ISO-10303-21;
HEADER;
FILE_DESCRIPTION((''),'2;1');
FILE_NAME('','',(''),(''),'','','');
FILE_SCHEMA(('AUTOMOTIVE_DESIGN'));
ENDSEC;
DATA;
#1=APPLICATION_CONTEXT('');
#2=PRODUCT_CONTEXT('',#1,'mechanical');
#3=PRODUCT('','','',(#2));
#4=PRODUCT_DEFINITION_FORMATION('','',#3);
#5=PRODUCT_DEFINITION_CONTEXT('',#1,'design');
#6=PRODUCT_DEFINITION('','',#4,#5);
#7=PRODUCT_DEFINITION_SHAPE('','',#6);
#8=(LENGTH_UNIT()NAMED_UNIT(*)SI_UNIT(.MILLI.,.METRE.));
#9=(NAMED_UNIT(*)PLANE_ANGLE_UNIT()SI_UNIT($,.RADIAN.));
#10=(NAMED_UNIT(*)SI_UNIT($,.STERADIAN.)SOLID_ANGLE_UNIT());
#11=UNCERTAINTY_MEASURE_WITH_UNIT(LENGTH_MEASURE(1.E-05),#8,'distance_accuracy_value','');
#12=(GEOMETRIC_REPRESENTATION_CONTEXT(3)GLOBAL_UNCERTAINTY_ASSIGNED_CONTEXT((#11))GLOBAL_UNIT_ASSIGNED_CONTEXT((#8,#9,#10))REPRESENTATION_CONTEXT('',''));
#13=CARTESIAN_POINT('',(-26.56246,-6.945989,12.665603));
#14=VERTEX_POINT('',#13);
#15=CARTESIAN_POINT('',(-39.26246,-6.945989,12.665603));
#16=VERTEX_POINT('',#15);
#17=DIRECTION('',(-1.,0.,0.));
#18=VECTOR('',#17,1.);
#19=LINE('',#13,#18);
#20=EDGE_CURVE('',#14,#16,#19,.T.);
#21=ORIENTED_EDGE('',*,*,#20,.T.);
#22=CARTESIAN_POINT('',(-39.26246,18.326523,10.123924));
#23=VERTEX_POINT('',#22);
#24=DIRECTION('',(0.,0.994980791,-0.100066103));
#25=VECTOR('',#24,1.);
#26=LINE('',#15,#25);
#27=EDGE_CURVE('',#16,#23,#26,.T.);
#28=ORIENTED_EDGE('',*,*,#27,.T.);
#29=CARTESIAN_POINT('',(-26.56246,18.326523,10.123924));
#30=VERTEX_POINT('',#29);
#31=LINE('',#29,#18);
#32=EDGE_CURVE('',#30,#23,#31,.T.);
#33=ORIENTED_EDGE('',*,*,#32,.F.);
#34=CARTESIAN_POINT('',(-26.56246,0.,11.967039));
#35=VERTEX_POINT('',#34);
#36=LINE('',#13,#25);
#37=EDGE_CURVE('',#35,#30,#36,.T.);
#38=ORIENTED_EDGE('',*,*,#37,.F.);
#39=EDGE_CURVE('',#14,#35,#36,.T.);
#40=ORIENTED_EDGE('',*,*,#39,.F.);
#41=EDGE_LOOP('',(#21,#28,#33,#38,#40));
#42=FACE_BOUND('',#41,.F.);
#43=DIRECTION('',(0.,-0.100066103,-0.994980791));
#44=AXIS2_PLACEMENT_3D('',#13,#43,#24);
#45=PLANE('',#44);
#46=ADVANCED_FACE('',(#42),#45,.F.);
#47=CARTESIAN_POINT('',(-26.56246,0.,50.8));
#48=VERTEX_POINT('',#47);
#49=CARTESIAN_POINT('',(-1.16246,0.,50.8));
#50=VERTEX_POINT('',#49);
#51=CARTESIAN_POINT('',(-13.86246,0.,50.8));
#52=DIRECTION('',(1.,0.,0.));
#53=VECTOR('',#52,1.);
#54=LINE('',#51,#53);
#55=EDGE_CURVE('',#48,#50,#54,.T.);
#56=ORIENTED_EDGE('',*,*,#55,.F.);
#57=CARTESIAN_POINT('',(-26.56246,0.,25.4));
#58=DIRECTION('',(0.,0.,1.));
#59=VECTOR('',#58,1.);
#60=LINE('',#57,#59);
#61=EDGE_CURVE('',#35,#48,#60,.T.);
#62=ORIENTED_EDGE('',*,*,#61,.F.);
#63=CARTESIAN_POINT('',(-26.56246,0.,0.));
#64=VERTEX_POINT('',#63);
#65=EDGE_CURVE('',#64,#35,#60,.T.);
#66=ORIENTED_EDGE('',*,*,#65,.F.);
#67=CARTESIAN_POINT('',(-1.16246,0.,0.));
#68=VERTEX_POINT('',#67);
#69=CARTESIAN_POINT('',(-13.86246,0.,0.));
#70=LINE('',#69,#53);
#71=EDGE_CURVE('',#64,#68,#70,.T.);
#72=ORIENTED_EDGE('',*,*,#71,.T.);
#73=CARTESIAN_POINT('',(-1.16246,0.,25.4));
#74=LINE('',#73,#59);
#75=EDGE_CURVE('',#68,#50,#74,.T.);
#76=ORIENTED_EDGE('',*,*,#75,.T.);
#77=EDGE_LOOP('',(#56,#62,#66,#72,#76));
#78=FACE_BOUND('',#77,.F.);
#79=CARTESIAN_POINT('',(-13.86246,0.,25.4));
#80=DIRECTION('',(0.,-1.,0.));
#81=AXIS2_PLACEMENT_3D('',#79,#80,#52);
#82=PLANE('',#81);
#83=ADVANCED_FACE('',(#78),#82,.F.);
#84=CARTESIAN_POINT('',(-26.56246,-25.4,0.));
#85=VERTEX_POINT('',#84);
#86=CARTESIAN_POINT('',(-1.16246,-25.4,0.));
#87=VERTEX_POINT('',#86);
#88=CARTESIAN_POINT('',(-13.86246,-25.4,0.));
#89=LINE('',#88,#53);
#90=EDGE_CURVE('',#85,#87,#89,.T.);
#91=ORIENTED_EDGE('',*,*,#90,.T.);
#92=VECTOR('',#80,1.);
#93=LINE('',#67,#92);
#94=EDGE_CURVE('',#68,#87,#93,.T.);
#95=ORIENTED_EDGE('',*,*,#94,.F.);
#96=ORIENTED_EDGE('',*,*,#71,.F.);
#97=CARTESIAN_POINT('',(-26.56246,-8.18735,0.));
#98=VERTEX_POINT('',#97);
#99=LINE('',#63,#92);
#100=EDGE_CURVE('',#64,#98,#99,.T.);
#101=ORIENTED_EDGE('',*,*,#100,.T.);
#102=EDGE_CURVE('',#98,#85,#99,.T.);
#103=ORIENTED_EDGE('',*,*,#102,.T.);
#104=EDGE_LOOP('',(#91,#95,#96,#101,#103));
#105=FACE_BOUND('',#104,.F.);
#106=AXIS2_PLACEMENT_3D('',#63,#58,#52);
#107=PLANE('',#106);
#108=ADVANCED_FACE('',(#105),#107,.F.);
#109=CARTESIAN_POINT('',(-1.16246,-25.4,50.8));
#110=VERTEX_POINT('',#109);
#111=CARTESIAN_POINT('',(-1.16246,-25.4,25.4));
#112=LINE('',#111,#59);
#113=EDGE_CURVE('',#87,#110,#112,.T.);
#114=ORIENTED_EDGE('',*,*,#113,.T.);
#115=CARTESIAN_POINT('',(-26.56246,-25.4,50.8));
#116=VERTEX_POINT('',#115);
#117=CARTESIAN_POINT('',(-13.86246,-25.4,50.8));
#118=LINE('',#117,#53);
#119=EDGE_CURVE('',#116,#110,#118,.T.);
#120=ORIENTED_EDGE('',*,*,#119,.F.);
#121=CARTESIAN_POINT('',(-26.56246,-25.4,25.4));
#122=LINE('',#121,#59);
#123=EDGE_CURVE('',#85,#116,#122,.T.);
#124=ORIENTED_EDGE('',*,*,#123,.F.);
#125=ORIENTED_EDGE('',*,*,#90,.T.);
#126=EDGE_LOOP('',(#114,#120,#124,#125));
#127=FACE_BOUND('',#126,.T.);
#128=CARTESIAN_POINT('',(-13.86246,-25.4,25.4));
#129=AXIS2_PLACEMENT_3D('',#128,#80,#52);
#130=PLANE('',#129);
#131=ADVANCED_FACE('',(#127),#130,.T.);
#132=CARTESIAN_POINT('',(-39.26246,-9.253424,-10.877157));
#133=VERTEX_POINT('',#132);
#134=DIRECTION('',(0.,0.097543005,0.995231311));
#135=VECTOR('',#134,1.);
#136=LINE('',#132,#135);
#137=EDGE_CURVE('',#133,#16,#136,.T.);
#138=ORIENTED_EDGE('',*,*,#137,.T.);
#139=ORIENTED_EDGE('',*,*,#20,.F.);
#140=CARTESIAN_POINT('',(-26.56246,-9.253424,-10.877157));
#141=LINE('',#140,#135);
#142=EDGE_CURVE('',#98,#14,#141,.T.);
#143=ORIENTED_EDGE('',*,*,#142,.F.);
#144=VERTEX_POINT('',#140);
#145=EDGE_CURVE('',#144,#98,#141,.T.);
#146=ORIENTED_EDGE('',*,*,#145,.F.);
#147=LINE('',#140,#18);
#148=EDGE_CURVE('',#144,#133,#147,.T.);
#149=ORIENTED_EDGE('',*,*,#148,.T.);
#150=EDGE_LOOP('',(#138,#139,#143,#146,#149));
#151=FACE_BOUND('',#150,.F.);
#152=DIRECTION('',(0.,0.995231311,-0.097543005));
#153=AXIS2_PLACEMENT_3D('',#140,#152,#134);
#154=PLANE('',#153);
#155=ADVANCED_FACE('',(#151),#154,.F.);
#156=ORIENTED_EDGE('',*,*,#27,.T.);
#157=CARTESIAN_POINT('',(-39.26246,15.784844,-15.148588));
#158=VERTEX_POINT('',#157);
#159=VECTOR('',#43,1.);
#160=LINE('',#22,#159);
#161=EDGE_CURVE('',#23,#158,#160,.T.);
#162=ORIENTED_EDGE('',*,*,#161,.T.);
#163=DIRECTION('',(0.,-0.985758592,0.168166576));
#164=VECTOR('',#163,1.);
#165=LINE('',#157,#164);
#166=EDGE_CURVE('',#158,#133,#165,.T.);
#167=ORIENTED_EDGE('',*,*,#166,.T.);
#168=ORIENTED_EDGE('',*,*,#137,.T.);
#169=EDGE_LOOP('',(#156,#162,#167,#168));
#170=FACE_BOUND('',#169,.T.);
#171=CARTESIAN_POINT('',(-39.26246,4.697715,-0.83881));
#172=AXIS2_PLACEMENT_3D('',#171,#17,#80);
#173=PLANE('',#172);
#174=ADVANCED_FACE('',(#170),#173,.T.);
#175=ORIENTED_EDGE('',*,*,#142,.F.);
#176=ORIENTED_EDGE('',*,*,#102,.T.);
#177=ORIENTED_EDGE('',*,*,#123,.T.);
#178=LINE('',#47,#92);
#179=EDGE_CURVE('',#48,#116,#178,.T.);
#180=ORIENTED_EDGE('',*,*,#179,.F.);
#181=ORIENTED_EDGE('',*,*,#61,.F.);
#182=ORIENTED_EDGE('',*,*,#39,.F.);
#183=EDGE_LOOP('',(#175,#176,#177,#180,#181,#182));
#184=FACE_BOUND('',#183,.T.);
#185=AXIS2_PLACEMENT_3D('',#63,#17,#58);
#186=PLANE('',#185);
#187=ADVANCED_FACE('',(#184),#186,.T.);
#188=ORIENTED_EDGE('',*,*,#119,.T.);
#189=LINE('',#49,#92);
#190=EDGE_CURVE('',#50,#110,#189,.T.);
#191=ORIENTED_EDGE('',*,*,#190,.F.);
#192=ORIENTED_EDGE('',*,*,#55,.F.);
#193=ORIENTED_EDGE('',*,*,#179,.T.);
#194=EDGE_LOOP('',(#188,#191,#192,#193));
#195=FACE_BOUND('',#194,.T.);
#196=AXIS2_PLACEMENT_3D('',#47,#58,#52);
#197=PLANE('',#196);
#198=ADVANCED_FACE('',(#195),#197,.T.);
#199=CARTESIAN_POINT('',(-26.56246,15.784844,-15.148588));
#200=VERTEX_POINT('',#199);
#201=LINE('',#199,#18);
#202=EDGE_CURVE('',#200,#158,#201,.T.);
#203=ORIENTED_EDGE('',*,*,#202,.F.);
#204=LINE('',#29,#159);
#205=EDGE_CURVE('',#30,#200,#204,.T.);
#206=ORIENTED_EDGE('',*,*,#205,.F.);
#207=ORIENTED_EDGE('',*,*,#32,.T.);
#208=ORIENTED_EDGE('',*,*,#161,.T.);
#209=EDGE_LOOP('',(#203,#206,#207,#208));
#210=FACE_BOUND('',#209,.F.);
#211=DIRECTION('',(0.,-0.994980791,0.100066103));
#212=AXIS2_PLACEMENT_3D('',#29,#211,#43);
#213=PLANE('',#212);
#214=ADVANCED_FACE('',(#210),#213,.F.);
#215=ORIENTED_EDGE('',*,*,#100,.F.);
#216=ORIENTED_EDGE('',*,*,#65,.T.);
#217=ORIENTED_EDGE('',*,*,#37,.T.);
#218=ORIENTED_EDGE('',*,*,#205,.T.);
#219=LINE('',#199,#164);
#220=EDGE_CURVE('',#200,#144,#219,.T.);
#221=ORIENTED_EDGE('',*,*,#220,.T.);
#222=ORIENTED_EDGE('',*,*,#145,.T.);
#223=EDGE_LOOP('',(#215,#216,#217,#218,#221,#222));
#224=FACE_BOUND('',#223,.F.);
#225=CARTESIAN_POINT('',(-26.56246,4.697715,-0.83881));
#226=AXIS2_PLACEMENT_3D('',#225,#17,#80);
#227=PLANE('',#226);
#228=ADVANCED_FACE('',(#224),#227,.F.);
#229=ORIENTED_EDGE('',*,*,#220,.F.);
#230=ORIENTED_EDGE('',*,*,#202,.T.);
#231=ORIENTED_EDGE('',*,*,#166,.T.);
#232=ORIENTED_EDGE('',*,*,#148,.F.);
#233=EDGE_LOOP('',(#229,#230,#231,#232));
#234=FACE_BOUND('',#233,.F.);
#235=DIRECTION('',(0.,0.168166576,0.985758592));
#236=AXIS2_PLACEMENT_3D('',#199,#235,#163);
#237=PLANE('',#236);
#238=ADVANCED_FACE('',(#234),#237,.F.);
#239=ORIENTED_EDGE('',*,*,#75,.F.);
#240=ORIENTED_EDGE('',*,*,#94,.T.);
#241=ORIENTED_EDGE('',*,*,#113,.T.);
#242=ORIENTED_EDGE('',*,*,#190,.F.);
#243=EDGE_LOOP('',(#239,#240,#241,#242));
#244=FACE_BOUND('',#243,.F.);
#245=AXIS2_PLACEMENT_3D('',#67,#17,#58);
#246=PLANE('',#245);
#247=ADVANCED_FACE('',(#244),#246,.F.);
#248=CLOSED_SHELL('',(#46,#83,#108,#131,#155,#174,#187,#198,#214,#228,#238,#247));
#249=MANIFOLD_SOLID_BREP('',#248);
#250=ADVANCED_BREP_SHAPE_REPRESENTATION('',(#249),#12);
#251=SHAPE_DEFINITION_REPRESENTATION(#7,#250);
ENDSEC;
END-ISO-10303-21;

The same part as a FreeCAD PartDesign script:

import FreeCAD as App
import Part
import Sketcher
from FreeCAD import Vector
Q = App.Units.Quantity


def add_polygon(sketch, points):
    """Adds a closed chain of lines whose ends are joined by coincident constraints."""
    first, n = sketch.GeometryCount, len(points)
    for a, b in zip(points, points[1:] + points[:1]):
        sketch.addGeometry(Part.LineSegment(App.Vector(*a, 0), App.Vector(*b, 0)), False)
    for i in range(n):
        sketch.addConstraint(Sketcher.Constraint("Coincident", first + i, 2, first + (i + 1) % n, 1))

doc = App.newDocument("Part")
body = doc.addObject("PartDesign::Body", "Body")

# Sketch on XZ plane
sketch1 = doc.addObject("Sketcher::SketchObject", "Sketch")
body.addObject(sketch1)
sketch1.AttachmentSupport = (doc.XZ_Plane, [""])
sketch1.MapMode = "FlatFace"
add_polygon(sketch1, [(-26.56246, 50.8), (-26.56246, 0), (-1.16246, 0), (-1.16246, 50.8)])  # lines 0-3
sketch1.addConstraint([
    Sketcher.Constraint("Vertical", 0),
    Sketcher.Constraint("Horizontal", 1),
    Sketcher.Constraint("Vertical", 2),
    Sketcher.Constraint("Horizontal", 3),
    Sketcher.Constraint("PointOnObject", 0, 2, -1),
    Sketcher.Constraint("DistanceX", 1, 1, 1, 2, Q("1 in")),
    Sketcher.Constraint("DistanceY", 0, 2, 0, 1, Q("2 in")),
    Sketcher.Constraint("DistanceX", 0, 2, -1, 1, Q("26.56246 mm")),
])
pad1 = doc.addObject("PartDesign::Pad", "Pad")
body.addObject(pad1)
pad1.Profile = sketch1
pad1.Length = Q("1 in")

# Sketch on YZ plane
sketch2 = doc.addObject("Sketcher::SketchObject", "Sketch001")
body.addObject(sketch2)
sketch2.AttachmentSupport = (doc.YZ_Plane, [""])
sketch2.MapMode = "FlatFace"
sketch2.AttachmentOffset = App.Placement(Vector(0, 0, -26.56246), App.Rotation())
add_polygon(sketch2, [(-9.253424, -10.877157), (-6.945989, 12.665603), (18.326523, 10.123924), (15.784844, -15.148588)])  # lines 0-3
sketch2.addConstraint([
    Sketcher.Constraint("Perpendicular", 1, 2),
    Sketcher.Constraint("Equal", 1, 2),
    Sketcher.Constraint("Equal", 2, 3),
    Sketcher.Constraint("Distance", 1, Q("1 in")),
    Sketcher.Constraint("DistanceX", 0, 2, -1, 1, Q("6.945989 mm")),
    Sketcher.Constraint("DistanceY", 1, 2, 0, 2, Q("2.541679 mm")),
    Sketcher.Constraint("DistanceY", 3, 2, 0, 2, Q("23.54276 mm")),
    Sketcher.Constraint("DistanceY", -1, 1, 0, 2, Q("12.665603 mm")),
])
pad2 = doc.addObject("PartDesign::Pad", "Pad001")
body.addObject(pad2)
pad2.Profile = sketch2
pad2.Length = Q("0.5 in")
pad2.Reversed = True

doc.recompute()
